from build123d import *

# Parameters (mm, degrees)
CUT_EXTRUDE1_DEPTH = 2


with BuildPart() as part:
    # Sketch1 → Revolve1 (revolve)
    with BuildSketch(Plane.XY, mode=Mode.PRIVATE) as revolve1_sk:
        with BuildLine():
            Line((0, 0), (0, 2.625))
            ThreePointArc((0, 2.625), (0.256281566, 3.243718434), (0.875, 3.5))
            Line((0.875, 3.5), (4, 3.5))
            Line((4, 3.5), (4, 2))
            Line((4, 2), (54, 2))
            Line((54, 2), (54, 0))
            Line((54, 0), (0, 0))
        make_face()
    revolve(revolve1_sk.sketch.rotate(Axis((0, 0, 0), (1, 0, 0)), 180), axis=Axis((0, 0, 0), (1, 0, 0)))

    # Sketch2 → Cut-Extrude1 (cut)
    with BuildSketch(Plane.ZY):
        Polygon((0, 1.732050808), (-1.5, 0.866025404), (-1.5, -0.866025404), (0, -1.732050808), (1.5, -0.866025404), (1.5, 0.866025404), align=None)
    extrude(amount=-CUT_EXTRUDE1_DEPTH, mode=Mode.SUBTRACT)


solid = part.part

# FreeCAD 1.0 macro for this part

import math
import FreeCAD as App
import Part
import Sketcher
Q = App.Units.Quantity


def add_polygon(sketch, points):
    """Adds a closed chain of lines whose ends are joined by coincident constraints."""
    first, n = sketch.GeometryCount, len(points)
    for a, b in zip(points, points[1:] + points[:1]):
        sketch.addGeometry(Part.LineSegment(App.Vector(*a, 0), App.Vector(*b, 0)), False)
    for i in range(n):
        sketch.addConstraint(Sketcher.Constraint("Coincident", first + i, 2, first + (i + 1) % n, 1))

doc = App.newDocument("Part")
body = doc.addObject("PartDesign::Body", "Body")

# Sketch on XY plane
sketch1 = doc.addObject("Sketcher::SketchObject", "Sketch")
body.addObject(sketch1)
sketch1.AttachmentSupport = (doc.XY_Plane, [""])
sketch1.MapMode = "FlatFace"
sketch1.addGeometry(Part.LineSegment(App.Vector(0, 2.6, 0), App.Vector(0, 0, 0)), False)
sketch1.addGeometry(Part.LineSegment(App.Vector(0, 0, 0), App.Vector(54, 0, 0)), False)
sketch1.addGeometry(Part.LineSegment(App.Vector(54, 0, 0), App.Vector(54, 2, 0)), False)
sketch1.addGeometry(Part.LineSegment(App.Vector(54, 2, 0), App.Vector(4, 2, 0)), False)
sketch1.addGeometry(Part.LineSegment(App.Vector(4, 2, 0), App.Vector(4, 3.5, 0)), False)
sketch1.addGeometry(Part.LineSegment(App.Vector(4, 3.5, 0), App.Vector(0.9, 3.5, 0)), False)
sketch1.addGeometry(Part.ArcOfCircle(Part.Circle(App.Vector(0.9, 2.6, 0), App.Vector(0, 0, 1), 0.9), math.radians(90), math.radians(180)), False)
sketch1.addConstraint(Sketcher.Constraint("Coincident", 0, 2, 1, 1))
sketch1.addConstraint(Sketcher.Constraint("Coincident", 1, 2, 2, 1))
sketch1.addConstraint(Sketcher.Constraint("Coincident", 2, 2, 3, 1))
sketch1.addConstraint(Sketcher.Constraint("Coincident", 3, 2, 4, 1))
sketch1.addConstraint(Sketcher.Constraint("Coincident", 4, 2, 5, 1))
sketch1.addConstraint(Sketcher.Constraint("Tangent", 5, 2, 6, 1))
sketch1.addConstraint(Sketcher.Constraint("Tangent", 6, 2, 0, 1))
sketch1.addConstraint(Sketcher.Constraint("Vertical", 0))
sketch1.addConstraint(Sketcher.Constraint("Horizontal", 1))
sketch1.addConstraint(Sketcher.Constraint("Vertical", 2))
sketch1.addConstraint(Sketcher.Constraint("Horizontal", 3))
sketch1.addConstraint(Sketcher.Constraint("Vertical", 4))
sketch1.addConstraint(Sketcher.Constraint("Horizontal", 5))
sketch1.addConstraint(Sketcher.Constraint("Coincident", 0, 2, -1, 1))
sketch1.addConstraint(Sketcher.Constraint("DistanceX", 1, 1, 1, 2, Q("54 mm")))
sketch1.addConstraint(Sketcher.Constraint("DistanceX", 3, 2, 3, 1, Q("50 mm")))
sketch1.addConstraint(Sketcher.Constraint("DistanceY", 2, 1, 2, 2, Q("2 mm")))
sketch1.addConstraint(Sketcher.Constraint("DistanceY", 4, 1, 4, 2, Q("1.5 mm")))
sketch1.addConstraint(Sketcher.Constraint("Radius", 6, Q("0.875 mm")))
revolution = doc.addObject("PartDesign::Revolution", "Revolution")
body.addObject(revolution)
revolution.Profile = sketch1
revolution.ReferenceAxis = (sketch1, ["H_Axis"])
revolution.Angle = 360

# Sketch on YZ plane
sketch2 = doc.addObject("Sketcher::SketchObject", "Sketch001")
body.addObject(sketch2)
sketch2.AttachmentSupport = (doc.YZ_Plane, [""])
sketch2.MapMode = "FlatFace"
add_polygon(sketch2, [(1.7, 0), (0.9, -1.5), (-0.9, -1.5), (-1.7, 0), (-0.9, 1.5), (0.9, 1.5)])  # lines 0-5
sketch2.addConstraint(Sketcher.Constraint("Horizontal", 1))
sketch2.addConstraint(Sketcher.Constraint("Horizontal", 4))
sketch2.addConstraint(Sketcher.Constraint("Symmetric", 0, 2, 3, 2, -1, 1))
sketch2.addConstraint(Sketcher.Constraint("Symmetric", 2, 2, 5, 2, -1, 1))
sketch2.addConstraint(Sketcher.Constraint("PointOnObject", 2, 2, -1))
sketch2.addConstraint(Sketcher.Constraint("Parallel", 2, 5))
sketch2.addConstraint(Sketcher.Constraint("Vertical", 1, 2, 3, 2))
sketch2.addConstraint(Sketcher.Constraint("Angle", 0, Q("-120 deg")))
sketch2.addConstraint(Sketcher.Constraint("DistanceY", 1, 2, 3, 2, Q("3 mm")))
sketch2.addConstraint(Sketcher.Constraint("DistanceX", 1, 2, 1, 1, Q("1.732051 mm")))
pocket1 = doc.addObject("PartDesign::Pocket", "Pocket")
body.addObject(pocket1)
pocket1.Profile = sketch2
pocket1.Length = 2
pocket1.Reversed = True

doc.recompute()
